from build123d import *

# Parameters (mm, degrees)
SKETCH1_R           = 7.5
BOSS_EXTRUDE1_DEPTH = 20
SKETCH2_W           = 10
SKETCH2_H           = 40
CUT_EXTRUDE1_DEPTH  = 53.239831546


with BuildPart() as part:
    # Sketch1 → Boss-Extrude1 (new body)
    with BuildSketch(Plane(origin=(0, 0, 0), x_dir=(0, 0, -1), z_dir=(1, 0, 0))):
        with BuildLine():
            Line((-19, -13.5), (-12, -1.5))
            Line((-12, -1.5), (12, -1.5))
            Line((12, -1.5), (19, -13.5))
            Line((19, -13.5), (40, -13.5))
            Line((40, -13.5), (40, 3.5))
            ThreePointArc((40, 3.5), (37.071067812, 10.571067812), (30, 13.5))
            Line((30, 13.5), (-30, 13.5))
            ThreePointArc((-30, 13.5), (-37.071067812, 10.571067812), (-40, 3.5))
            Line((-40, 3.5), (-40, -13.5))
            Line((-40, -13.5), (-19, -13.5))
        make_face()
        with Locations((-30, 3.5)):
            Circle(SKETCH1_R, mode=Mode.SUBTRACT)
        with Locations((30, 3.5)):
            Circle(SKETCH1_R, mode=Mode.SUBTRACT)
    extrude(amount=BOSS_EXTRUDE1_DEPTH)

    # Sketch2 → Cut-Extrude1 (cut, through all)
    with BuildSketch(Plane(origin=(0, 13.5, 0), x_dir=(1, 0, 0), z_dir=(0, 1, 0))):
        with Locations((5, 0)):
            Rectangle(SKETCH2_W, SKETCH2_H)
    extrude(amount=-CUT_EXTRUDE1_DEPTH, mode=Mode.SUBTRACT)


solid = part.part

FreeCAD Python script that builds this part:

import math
import FreeCAD as App
import Part
import Sketcher

V = App.Vector
Q = App.Units.Quantity


def add_polygon(sketch, points):
    """Adds a closed chain of lines whose ends are joined by coincident constraints."""
    first, n = sketch.GeometryCount, len(points)
    for a, b in zip(points, points[1:] + points[:1]):
        sketch.addGeometry(Part.LineSegment(App.Vector(*a, 0), App.Vector(*b, 0)), False)
    for i in range(n):
        sketch.addConstraint(Sketcher.Constraint("Coincident", first + i, 2, first + (i + 1) % n, 1))

doc = App.newDocument("Part")
body = doc.addObject("PartDesign::Body", "Body")

sketch1 = body.newObject("Sketcher::SketchObject", "Sketch")
sketch1.AttachmentSupport = (doc.getObject("YZ_Plane"), [""])
sketch1.MapMode = "FlatFace"
sketch1.addGeometry([
    Part.LineSegment(V(-13.5, 19, 0), V(-1.5, 12, 0)),
    Part.LineSegment(V(-1.5, 12, 0), V(-1.5, -12, 0)),
    Part.LineSegment(V(-1.5, -12, 0), V(-13.5, -19, 0)),
    Part.LineSegment(V(-13.5, -19, 0), V(-13.5, -40, 0)),
    Part.LineSegment(V(-13.5, -40, 0), V(3.5, -40, 0)),
    Part.ArcOfCircle(Part.Circle(V(3.5, -30, 0), V(0, 0, 1), 10), math.radians(-90), math.radians(0)),
    Part.LineSegment(V(13.5, -30, 0), V(13.5, 30, 0)),
    Part.ArcOfCircle(Part.Circle(V(3.5, 30, 0), V(0, 0, 1), 10), math.radians(0), math.radians(90)),
    Part.LineSegment(V(3.5, 40, 0), V(-13.5, 40, 0)),
    Part.LineSegment(V(-13.5, 40, 0), V(-13.5, 19, 0)),
    Part.Circle(V(3.5, 30, 0), V(0, 0, 1), 7.5),
    Part.Circle(V(3.5, -30, 0), V(0, 0, 1), 7.5),
], False)
sketch1.addConstraint([
    Sketcher.Constraint("Coincident", 0, 2, 1, 1),
    Sketcher.Constraint("Coincident", 1, 2, 2, 1),
    Sketcher.Constraint("Coincident", 2, 2, 3, 1),
    Sketcher.Constraint("Coincident", 3, 2, 4, 1),
    Sketcher.Constraint("Tangent", 4, 2, 5, 1),
    Sketcher.Constraint("Tangent", 5, 2, 6, 1),
    Sketcher.Constraint("Tangent", 6, 2, 7, 1),
    Sketcher.Constraint("Tangent", 7, 2, 8, 1),
    Sketcher.Constraint("Coincident", 8, 2, 9, 1),
    Sketcher.Constraint("Coincident", 9, 2, 0, 1),
    Sketcher.Constraint("Vertical", 1),
    Sketcher.Constraint("Vertical", 3),
    Sketcher.Constraint("Horizontal", 4),
    Sketcher.Constraint("Vertical", 6),
    Sketcher.Constraint("Horizontal", 8),
    Sketcher.Constraint("Vertical", 9),
    Sketcher.Constraint("Coincident", 10, 3, 7, 3),
    Sketcher.Constraint("Coincident", 11, 3, 5, 3),
    Sketcher.Constraint("Equal", 5, 7),
    Sketcher.Constraint("Equal", 10, 11),
    Sketcher.Constraint("Symmetric", 3, 2, 8, 2, -1),
    Sketcher.Constraint("Equal", 3, 9),
    Sketcher.Constraint("Equal", 0, 2),
    Sketcher.Constraint("Diameter", 10, Q("15 mm")),
    Sketcher.Constraint("Radius", 5, Q("10 mm")),
    Sketcher.Constraint("DistanceX", 4, 1, 4, 2, Q("17 mm")),
    Sketcher.Constraint("DistanceY", 1, 2, 1, 1, Q("24 mm")),
    Sketcher.Constraint("DistanceY", 3, 2, 3, 1, Q("21 mm")),
    Sketcher.Constraint("DistanceY", 6, 1, 6, 2, Q("60 mm")),
    Sketcher.Constraint("DistanceX", 0, 2, 7, 3, Q("5 mm")),
    Sketcher.Constraint("DistanceX", -1, 1, 5, 3, Q("3.5 mm")),
])
pad1 = body.newObject("PartDesign::Pad", "Pad")
pad1.Profile = sketch1
pad1.Length = 20

sketch2 = body.newObject("Sketcher::SketchObject", "Sketch001")
sketch2.AttachmentSupport = (doc.getObject("XZ_Plane"), [""])
sketch2.MapMode = "FlatFace"
sketch2.AttachmentOffset = App.Placement(V(0, 0, -13.5), App.Rotation())
add_polygon(sketch2, [(0, -20), (0, 20), (10, 20), (10, -20)])
sketch2.addConstraint([
    Sketcher.Constraint("Vertical", 0),
    Sketcher.Constraint("Horizontal", 1),
    Sketcher.Constraint("Vertical", 2),
    Sketcher.Constraint("Horizontal", 3),
    Sketcher.Constraint("Symmetric", 0, 2, 3, 2, -1, 1),
    Sketcher.Constraint("DistanceX", 1, 1, 1, 2, Q("10 mm")),
    Sketcher.Constraint("DistanceY", 0, 1, 0, 2, Q("40 mm")),
])
pocket1 = body.newObject("PartDesign::Pocket", "Pocket")
pocket1.Profile = sketch2
pocket1.Type = "ThroughAll"
pocket1.Reversed = True

doc.recompute()
